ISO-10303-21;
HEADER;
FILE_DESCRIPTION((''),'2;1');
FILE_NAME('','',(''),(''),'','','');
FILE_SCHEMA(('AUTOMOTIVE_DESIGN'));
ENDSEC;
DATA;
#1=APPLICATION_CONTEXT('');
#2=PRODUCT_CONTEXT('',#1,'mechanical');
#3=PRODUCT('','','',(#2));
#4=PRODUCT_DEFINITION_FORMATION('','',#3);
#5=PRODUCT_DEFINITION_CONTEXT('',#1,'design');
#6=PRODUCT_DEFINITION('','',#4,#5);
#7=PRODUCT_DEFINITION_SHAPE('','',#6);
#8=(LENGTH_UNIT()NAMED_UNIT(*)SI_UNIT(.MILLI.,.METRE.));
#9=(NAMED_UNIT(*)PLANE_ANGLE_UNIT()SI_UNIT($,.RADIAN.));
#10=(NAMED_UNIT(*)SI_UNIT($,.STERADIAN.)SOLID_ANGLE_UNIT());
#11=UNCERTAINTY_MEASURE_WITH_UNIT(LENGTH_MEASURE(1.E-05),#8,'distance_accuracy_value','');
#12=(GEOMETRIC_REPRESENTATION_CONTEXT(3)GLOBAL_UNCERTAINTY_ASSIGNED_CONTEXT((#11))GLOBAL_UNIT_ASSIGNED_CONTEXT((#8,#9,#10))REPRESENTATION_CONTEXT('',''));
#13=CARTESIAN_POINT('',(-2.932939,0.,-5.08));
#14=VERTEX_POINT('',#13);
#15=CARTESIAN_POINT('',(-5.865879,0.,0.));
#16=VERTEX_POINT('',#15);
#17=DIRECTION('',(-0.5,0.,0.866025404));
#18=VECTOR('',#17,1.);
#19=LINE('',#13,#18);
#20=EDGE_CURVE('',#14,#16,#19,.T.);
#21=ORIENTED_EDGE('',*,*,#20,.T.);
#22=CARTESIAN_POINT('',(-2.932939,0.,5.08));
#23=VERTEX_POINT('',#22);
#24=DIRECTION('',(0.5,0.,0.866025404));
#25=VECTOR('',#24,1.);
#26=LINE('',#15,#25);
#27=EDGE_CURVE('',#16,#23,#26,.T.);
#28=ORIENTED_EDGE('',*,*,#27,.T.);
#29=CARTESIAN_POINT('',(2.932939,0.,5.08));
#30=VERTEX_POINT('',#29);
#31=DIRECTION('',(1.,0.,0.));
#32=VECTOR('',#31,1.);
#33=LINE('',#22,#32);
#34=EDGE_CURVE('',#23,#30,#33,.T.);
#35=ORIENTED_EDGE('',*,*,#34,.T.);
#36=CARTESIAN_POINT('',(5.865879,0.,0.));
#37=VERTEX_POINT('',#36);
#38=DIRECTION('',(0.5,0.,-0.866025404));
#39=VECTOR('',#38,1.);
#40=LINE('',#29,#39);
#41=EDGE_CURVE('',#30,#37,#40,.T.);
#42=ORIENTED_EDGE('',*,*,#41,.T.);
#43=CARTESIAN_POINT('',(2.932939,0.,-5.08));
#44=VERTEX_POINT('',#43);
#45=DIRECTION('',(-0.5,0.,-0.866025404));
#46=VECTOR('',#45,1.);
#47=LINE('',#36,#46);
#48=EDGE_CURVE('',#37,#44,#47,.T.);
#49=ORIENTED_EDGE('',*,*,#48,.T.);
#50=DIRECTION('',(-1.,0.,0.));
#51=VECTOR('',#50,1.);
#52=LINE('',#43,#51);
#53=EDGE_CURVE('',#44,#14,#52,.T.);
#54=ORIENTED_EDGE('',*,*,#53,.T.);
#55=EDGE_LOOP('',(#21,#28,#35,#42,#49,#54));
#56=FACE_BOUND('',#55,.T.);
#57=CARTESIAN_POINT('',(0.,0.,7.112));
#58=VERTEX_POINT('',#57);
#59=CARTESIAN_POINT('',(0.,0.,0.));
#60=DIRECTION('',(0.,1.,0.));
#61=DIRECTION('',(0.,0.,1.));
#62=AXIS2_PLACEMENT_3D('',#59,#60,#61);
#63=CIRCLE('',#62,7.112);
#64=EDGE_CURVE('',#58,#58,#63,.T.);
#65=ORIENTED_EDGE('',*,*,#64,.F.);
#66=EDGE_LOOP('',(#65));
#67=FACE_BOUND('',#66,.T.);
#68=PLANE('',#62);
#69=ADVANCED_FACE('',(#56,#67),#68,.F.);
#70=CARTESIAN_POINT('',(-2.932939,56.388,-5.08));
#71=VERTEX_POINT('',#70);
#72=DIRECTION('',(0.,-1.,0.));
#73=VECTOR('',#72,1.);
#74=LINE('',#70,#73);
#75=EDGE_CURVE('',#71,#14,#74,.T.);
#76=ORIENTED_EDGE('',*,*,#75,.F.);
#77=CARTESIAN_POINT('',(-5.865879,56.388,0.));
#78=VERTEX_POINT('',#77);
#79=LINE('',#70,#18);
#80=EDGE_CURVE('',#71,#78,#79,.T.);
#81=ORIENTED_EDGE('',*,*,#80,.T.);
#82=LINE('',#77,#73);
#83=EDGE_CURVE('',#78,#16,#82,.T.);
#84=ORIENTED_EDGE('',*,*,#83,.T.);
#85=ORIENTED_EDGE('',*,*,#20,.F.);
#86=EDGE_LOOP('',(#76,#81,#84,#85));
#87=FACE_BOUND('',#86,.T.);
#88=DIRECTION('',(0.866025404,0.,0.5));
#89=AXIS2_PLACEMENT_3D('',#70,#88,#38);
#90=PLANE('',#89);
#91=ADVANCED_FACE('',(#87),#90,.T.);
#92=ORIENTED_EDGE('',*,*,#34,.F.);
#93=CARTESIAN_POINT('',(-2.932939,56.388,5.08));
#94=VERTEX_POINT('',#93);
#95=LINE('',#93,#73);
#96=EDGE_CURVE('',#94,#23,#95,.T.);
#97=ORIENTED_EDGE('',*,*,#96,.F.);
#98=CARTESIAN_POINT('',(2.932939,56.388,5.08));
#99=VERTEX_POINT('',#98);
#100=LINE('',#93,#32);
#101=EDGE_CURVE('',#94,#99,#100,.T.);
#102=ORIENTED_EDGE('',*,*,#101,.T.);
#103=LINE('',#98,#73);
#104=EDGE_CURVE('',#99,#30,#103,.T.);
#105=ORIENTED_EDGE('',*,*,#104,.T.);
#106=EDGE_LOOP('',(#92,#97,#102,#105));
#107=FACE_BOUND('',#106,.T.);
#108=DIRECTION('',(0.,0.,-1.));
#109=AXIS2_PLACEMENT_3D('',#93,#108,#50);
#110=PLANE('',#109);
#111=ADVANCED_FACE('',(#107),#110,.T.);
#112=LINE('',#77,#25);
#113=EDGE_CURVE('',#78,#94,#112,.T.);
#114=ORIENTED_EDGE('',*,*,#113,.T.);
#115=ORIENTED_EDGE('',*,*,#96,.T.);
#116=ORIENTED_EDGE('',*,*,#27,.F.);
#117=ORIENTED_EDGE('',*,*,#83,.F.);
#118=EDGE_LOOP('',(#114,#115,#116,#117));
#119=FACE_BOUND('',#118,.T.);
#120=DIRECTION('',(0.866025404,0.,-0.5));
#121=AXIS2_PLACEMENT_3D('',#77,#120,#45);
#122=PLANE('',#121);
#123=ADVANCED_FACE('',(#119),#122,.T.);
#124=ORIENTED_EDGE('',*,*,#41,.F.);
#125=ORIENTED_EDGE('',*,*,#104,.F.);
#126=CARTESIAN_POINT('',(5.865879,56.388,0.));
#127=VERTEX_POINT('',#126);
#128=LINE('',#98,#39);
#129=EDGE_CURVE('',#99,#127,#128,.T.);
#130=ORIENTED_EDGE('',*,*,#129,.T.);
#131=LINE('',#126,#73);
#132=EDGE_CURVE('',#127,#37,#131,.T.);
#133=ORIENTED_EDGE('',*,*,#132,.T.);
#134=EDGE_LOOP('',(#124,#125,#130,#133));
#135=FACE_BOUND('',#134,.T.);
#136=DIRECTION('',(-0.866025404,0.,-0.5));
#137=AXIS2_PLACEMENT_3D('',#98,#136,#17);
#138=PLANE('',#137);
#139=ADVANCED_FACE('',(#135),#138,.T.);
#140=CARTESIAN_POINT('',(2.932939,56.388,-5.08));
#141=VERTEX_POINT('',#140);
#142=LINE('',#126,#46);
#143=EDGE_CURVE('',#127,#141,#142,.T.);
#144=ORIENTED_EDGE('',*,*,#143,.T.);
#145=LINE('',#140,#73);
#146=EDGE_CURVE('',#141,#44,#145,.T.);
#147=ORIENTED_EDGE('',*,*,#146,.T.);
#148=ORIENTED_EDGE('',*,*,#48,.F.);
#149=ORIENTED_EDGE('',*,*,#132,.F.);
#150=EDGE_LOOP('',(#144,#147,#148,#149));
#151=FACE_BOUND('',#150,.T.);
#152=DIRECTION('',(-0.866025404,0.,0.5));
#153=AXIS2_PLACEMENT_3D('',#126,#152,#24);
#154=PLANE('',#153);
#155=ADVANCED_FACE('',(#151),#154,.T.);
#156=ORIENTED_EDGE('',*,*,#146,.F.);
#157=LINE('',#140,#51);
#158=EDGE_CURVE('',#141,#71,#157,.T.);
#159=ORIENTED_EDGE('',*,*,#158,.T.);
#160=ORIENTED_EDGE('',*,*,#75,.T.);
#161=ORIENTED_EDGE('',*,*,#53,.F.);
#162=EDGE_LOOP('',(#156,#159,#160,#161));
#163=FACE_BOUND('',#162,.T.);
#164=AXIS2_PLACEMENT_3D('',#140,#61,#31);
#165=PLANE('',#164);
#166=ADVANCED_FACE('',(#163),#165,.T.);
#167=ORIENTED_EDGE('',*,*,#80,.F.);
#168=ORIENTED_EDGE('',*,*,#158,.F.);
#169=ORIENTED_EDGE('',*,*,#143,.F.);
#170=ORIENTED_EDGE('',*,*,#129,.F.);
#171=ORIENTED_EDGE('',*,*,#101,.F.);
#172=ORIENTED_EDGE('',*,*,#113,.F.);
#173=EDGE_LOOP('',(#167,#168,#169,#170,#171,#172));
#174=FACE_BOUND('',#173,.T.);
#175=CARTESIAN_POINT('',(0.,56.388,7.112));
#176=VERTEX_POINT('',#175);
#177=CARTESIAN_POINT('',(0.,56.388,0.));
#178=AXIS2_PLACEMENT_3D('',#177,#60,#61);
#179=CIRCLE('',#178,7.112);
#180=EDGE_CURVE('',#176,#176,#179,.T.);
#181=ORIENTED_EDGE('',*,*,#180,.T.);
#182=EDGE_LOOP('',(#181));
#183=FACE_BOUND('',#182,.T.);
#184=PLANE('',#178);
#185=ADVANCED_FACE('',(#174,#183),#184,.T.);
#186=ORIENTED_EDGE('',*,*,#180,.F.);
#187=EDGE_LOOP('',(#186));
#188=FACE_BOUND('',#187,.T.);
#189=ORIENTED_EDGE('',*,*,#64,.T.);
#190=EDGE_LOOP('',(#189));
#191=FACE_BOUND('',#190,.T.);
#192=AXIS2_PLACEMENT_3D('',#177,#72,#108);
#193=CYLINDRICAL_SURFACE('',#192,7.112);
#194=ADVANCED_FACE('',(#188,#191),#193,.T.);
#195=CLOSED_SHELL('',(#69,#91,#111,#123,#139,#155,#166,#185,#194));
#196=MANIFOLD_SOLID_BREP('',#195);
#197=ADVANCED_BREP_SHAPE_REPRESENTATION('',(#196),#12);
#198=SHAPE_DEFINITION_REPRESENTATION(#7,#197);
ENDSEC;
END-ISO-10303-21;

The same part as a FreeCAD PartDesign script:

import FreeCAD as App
import Part
import Sketcher
Q = App.Units.Quantity

doc = App.newDocument("Part")
body = doc.addObject("PartDesign::Body", "Body")

sketch1 = body.newObject("Sketcher::SketchObject", "Sketch")
sketch1.AttachmentSupport = (doc.getObject("XZ_Plane"), [""])
sketch1.MapMode = "FlatFace"
sketch1.addGeometry([
    Part.Circle(App.Vector(0, 0, 0), App.Vector(0, 0, 1), 7),
    Part.LineSegment(App.Vector(6, 0, 0), App.Vector(3, 5, 0)),
    Part.LineSegment(App.Vector(3, 5, 0), App.Vector(-3, 5, 0)),
    Part.LineSegment(App.Vector(-3, 5, 0), App.Vector(-6, 0, 0)),
    Part.LineSegment(App.Vector(-6, 0, 0), App.Vector(-3, -5, 0)),
    Part.LineSegment(App.Vector(-3, -5, 0), App.Vector(3, -5, 0)),
    Part.LineSegment(App.Vector(3, -5, 0), App.Vector(6, 0, 0)),
], False)
sketch1.addConstraint([
    Sketcher.Constraint("Coincident", 1, 2, 2, 1),
    Sketcher.Constraint("Coincident", 2, 2, 3, 1),
    Sketcher.Constraint("Coincident", 3, 2, 4, 1),
    Sketcher.Constraint("Coincident", 4, 2, 5, 1),
    Sketcher.Constraint("Coincident", 5, 2, 6, 1),
    Sketcher.Constraint("Coincident", 6, 2, 1, 1),
    Sketcher.Constraint("Horizontal", 2),
    Sketcher.Constraint("Horizontal", 5),
    Sketcher.Constraint("Coincident", 0, 3, -1, 1),
    Sketcher.Constraint("Symmetric", 1, 2, 4, 2, -1, 1),
    Sketcher.Constraint("Symmetric", 3, 2, 6, 2, -1, 1),
    Sketcher.Constraint("PointOnObject", 3, 2, -1),
    Sketcher.Constraint("Parallel", 3, 6),
    Sketcher.Constraint("Vertical", 2, 2, 4, 2),
    Sketcher.Constraint("Diameter", 0, Q("0.56 in")),
    Sketcher.Constraint("Angle", 1, Q("120 deg")),
    Sketcher.Constraint("DistanceY", -1, 1, 1, 2, Q("0.2 in")),
    Sketcher.Constraint("DistanceX", 2, 2, 2, 1, 5.865879),
])
pad1 = body.newObject("PartDesign::Pad", "Pad")
pad1.Profile = sketch1
pad1.Length = Q("2.22 in")
pad1.Reversed = True

doc.recompute()
